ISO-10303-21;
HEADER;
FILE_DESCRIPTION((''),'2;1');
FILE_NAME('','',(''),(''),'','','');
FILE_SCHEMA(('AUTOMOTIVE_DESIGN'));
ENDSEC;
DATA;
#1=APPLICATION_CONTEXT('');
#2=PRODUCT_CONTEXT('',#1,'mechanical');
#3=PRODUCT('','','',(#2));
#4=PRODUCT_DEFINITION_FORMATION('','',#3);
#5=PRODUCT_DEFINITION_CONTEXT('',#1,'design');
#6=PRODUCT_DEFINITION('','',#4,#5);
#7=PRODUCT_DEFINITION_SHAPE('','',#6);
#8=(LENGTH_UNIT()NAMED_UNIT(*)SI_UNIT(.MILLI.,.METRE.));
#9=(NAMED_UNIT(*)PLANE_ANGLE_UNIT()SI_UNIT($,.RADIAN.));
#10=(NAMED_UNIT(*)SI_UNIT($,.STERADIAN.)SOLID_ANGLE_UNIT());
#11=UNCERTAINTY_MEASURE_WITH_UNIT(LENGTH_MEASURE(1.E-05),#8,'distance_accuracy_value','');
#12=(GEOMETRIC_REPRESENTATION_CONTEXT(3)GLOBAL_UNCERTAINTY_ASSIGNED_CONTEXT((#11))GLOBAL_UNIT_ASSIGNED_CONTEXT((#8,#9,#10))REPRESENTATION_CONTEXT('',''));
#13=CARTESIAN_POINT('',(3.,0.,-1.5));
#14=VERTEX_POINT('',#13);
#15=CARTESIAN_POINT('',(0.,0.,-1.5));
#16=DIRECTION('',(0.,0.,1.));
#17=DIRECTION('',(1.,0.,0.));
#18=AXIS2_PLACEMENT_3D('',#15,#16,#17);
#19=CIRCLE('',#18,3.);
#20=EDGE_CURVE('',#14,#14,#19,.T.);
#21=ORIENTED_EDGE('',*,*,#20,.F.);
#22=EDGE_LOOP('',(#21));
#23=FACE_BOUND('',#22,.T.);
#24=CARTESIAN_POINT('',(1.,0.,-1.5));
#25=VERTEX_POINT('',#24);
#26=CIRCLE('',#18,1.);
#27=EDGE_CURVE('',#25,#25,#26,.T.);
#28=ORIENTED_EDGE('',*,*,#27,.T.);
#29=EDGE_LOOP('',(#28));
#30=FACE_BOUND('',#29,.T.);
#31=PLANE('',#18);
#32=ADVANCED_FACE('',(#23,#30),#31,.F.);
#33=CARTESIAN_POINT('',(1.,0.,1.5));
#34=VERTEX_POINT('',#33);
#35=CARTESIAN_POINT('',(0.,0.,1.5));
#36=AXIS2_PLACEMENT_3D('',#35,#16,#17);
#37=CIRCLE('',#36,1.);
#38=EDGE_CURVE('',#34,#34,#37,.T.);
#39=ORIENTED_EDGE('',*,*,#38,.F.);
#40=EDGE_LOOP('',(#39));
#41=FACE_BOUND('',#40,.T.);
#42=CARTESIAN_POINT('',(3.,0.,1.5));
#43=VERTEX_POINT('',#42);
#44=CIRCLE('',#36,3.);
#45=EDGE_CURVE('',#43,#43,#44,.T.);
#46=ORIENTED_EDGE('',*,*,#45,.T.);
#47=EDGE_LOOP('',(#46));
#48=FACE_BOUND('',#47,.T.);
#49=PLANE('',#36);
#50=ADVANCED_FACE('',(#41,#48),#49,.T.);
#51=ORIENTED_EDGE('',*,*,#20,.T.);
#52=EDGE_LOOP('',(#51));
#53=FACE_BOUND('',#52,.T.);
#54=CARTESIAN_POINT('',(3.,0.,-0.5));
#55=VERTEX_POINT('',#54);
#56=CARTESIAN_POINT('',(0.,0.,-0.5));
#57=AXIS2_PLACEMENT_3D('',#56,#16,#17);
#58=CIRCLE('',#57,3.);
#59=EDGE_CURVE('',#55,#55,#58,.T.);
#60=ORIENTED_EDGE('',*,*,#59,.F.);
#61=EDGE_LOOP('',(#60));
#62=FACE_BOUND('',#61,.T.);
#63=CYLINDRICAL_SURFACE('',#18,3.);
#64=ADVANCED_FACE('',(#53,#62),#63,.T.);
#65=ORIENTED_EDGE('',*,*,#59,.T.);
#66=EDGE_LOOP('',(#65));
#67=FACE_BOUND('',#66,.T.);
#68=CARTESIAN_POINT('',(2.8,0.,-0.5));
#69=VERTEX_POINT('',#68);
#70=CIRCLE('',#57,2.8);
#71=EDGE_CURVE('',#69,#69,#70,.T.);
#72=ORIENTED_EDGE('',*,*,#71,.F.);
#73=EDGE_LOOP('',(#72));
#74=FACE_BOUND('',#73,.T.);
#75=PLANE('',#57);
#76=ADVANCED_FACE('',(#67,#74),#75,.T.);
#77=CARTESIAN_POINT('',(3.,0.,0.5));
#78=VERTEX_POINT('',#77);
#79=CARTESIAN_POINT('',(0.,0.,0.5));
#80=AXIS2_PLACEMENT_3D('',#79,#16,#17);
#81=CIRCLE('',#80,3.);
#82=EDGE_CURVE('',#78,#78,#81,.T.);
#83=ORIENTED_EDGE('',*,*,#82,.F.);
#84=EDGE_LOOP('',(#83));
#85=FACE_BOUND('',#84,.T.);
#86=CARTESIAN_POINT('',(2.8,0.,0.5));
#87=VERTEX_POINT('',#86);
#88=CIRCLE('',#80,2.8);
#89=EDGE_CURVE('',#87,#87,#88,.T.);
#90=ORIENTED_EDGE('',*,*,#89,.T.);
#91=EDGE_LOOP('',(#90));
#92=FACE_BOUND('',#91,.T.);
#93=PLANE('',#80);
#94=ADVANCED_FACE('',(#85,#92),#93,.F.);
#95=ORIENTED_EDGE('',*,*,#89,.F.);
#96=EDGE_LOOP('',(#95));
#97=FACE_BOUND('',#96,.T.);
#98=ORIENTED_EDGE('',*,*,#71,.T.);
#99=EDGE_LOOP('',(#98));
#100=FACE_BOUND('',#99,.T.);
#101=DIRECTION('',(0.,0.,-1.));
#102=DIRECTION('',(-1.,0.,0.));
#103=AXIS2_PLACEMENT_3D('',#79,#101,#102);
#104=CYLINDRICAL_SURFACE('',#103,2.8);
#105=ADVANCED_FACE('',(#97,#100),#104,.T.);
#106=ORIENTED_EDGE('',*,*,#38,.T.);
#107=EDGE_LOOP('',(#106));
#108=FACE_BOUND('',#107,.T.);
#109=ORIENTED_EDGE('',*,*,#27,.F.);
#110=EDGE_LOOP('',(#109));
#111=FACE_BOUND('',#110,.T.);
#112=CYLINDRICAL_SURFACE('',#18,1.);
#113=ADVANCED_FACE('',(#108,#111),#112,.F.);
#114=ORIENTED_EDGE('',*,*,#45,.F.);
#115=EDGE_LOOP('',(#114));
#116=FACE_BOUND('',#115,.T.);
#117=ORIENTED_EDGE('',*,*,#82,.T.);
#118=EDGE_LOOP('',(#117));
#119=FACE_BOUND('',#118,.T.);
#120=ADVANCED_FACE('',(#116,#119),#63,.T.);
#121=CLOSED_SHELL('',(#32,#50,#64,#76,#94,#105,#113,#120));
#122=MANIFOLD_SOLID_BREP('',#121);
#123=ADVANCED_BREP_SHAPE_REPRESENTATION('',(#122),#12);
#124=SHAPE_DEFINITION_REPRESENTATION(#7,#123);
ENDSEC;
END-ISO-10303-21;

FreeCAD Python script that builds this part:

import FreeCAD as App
import Part
import Sketcher
Q = App.Units.Quantity

doc = App.newDocument("Part")
params = doc.addObject("Spreadsheet::Sheet", "Params")
for row, (alias, value) in enumerate([
    ("sketch1_diameter", "6 mm"),
    ("sketch1_diameter2", "2 mm"),
    ("pad1_length", "1.5 mm"),
    ("pad1_length2", "1.5 mm"),
    ("sketch2_diameter", "6 mm"),
    ("sketch2_diameter2", "5.6 mm"),
    ("pocket1_length", "0.5 mm"),
    ("pocket1_length2", "0.5 mm"),
], start=1):
    params.set(f"A{row}", alias)
    params.set(f"B{row}", "=" + value)
    params.setAlias(f"B{row}", alias)

body = doc.addObject("PartDesign::Body", "Body")

sketch1 = doc.addObject("Sketcher::SketchObject", "Sketch")
body.addObject(sketch1)
sketch1.AttachmentSupport = (doc.XY_Plane, [""])
sketch1.MapMode = "FlatFace"
sketch1.addGeometry([
    Part.Circle(App.Vector(0, 0, 0), App.Vector(0, 0, 1), 3),
    Part.Circle(App.Vector(0, 0, 0), App.Vector(0, 0, 1), 1),
], False)
sketch1.addConstraint([
    Sketcher.Constraint("Coincident", 0, 3, -1, 1),
    Sketcher.Constraint("Coincident", 1, 3, -1, 1),
    Sketcher.Constraint("Diameter", 0, Q("6 mm")),
    Sketcher.Constraint("Diameter", 1, Q("2 mm")),
])
sketch1.setExpression("Constraints[2]", "Params.sketch1_diameter")
sketch1.setExpression("Constraints[3]", "Params.sketch1_diameter2")
pad1 = doc.addObject("PartDesign::Pad", "Pad")
body.addObject(pad1)
pad1.Profile = sketch1
pad1.Type = "TwoLengths"
pad1.setExpression("Length", "Params.pad1_length")
pad1.setExpression("Length2", "Params.pad1_length2")

sketch2 = doc.addObject("Sketcher::SketchObject", "Sketch001")
body.addObject(sketch2)
sketch2.AttachmentSupport = (doc.XY_Plane, [""])
sketch2.MapMode = "FlatFace"
sketch2.addGeometry([
    Part.Circle(App.Vector(0, 0, 0), App.Vector(0, 0, 1), 3),
    Part.Circle(App.Vector(0, 0, 0), App.Vector(0, 0, 1), 2.8),
], False)
sketch2.addConstraint([
    Sketcher.Constraint("Coincident", 0, 3, -1, 1),
    Sketcher.Constraint("Coincident", 1, 3, -1, 1),
    Sketcher.Constraint("Diameter", 0, Q("6 mm")),
    Sketcher.Constraint("Diameter", 1, Q("5.6 mm")),
])
sketch2.setExpression("Constraints[2]", "Params.sketch2_diameter")
sketch2.setExpression("Constraints[3]", "Params.sketch2_diameter2")
pocket1 = doc.addObject("PartDesign::Pocket", "Pocket")
body.addObject(pocket1)
pocket1.Profile = sketch2
pocket1.Type = "TwoLengths"
pocket1.setExpression("Length", "Params.pocket1_length")
pocket1.setExpression("Length2", "Params.pocket1_length2")
pocket1.Reversed = True

doc.recompute()
